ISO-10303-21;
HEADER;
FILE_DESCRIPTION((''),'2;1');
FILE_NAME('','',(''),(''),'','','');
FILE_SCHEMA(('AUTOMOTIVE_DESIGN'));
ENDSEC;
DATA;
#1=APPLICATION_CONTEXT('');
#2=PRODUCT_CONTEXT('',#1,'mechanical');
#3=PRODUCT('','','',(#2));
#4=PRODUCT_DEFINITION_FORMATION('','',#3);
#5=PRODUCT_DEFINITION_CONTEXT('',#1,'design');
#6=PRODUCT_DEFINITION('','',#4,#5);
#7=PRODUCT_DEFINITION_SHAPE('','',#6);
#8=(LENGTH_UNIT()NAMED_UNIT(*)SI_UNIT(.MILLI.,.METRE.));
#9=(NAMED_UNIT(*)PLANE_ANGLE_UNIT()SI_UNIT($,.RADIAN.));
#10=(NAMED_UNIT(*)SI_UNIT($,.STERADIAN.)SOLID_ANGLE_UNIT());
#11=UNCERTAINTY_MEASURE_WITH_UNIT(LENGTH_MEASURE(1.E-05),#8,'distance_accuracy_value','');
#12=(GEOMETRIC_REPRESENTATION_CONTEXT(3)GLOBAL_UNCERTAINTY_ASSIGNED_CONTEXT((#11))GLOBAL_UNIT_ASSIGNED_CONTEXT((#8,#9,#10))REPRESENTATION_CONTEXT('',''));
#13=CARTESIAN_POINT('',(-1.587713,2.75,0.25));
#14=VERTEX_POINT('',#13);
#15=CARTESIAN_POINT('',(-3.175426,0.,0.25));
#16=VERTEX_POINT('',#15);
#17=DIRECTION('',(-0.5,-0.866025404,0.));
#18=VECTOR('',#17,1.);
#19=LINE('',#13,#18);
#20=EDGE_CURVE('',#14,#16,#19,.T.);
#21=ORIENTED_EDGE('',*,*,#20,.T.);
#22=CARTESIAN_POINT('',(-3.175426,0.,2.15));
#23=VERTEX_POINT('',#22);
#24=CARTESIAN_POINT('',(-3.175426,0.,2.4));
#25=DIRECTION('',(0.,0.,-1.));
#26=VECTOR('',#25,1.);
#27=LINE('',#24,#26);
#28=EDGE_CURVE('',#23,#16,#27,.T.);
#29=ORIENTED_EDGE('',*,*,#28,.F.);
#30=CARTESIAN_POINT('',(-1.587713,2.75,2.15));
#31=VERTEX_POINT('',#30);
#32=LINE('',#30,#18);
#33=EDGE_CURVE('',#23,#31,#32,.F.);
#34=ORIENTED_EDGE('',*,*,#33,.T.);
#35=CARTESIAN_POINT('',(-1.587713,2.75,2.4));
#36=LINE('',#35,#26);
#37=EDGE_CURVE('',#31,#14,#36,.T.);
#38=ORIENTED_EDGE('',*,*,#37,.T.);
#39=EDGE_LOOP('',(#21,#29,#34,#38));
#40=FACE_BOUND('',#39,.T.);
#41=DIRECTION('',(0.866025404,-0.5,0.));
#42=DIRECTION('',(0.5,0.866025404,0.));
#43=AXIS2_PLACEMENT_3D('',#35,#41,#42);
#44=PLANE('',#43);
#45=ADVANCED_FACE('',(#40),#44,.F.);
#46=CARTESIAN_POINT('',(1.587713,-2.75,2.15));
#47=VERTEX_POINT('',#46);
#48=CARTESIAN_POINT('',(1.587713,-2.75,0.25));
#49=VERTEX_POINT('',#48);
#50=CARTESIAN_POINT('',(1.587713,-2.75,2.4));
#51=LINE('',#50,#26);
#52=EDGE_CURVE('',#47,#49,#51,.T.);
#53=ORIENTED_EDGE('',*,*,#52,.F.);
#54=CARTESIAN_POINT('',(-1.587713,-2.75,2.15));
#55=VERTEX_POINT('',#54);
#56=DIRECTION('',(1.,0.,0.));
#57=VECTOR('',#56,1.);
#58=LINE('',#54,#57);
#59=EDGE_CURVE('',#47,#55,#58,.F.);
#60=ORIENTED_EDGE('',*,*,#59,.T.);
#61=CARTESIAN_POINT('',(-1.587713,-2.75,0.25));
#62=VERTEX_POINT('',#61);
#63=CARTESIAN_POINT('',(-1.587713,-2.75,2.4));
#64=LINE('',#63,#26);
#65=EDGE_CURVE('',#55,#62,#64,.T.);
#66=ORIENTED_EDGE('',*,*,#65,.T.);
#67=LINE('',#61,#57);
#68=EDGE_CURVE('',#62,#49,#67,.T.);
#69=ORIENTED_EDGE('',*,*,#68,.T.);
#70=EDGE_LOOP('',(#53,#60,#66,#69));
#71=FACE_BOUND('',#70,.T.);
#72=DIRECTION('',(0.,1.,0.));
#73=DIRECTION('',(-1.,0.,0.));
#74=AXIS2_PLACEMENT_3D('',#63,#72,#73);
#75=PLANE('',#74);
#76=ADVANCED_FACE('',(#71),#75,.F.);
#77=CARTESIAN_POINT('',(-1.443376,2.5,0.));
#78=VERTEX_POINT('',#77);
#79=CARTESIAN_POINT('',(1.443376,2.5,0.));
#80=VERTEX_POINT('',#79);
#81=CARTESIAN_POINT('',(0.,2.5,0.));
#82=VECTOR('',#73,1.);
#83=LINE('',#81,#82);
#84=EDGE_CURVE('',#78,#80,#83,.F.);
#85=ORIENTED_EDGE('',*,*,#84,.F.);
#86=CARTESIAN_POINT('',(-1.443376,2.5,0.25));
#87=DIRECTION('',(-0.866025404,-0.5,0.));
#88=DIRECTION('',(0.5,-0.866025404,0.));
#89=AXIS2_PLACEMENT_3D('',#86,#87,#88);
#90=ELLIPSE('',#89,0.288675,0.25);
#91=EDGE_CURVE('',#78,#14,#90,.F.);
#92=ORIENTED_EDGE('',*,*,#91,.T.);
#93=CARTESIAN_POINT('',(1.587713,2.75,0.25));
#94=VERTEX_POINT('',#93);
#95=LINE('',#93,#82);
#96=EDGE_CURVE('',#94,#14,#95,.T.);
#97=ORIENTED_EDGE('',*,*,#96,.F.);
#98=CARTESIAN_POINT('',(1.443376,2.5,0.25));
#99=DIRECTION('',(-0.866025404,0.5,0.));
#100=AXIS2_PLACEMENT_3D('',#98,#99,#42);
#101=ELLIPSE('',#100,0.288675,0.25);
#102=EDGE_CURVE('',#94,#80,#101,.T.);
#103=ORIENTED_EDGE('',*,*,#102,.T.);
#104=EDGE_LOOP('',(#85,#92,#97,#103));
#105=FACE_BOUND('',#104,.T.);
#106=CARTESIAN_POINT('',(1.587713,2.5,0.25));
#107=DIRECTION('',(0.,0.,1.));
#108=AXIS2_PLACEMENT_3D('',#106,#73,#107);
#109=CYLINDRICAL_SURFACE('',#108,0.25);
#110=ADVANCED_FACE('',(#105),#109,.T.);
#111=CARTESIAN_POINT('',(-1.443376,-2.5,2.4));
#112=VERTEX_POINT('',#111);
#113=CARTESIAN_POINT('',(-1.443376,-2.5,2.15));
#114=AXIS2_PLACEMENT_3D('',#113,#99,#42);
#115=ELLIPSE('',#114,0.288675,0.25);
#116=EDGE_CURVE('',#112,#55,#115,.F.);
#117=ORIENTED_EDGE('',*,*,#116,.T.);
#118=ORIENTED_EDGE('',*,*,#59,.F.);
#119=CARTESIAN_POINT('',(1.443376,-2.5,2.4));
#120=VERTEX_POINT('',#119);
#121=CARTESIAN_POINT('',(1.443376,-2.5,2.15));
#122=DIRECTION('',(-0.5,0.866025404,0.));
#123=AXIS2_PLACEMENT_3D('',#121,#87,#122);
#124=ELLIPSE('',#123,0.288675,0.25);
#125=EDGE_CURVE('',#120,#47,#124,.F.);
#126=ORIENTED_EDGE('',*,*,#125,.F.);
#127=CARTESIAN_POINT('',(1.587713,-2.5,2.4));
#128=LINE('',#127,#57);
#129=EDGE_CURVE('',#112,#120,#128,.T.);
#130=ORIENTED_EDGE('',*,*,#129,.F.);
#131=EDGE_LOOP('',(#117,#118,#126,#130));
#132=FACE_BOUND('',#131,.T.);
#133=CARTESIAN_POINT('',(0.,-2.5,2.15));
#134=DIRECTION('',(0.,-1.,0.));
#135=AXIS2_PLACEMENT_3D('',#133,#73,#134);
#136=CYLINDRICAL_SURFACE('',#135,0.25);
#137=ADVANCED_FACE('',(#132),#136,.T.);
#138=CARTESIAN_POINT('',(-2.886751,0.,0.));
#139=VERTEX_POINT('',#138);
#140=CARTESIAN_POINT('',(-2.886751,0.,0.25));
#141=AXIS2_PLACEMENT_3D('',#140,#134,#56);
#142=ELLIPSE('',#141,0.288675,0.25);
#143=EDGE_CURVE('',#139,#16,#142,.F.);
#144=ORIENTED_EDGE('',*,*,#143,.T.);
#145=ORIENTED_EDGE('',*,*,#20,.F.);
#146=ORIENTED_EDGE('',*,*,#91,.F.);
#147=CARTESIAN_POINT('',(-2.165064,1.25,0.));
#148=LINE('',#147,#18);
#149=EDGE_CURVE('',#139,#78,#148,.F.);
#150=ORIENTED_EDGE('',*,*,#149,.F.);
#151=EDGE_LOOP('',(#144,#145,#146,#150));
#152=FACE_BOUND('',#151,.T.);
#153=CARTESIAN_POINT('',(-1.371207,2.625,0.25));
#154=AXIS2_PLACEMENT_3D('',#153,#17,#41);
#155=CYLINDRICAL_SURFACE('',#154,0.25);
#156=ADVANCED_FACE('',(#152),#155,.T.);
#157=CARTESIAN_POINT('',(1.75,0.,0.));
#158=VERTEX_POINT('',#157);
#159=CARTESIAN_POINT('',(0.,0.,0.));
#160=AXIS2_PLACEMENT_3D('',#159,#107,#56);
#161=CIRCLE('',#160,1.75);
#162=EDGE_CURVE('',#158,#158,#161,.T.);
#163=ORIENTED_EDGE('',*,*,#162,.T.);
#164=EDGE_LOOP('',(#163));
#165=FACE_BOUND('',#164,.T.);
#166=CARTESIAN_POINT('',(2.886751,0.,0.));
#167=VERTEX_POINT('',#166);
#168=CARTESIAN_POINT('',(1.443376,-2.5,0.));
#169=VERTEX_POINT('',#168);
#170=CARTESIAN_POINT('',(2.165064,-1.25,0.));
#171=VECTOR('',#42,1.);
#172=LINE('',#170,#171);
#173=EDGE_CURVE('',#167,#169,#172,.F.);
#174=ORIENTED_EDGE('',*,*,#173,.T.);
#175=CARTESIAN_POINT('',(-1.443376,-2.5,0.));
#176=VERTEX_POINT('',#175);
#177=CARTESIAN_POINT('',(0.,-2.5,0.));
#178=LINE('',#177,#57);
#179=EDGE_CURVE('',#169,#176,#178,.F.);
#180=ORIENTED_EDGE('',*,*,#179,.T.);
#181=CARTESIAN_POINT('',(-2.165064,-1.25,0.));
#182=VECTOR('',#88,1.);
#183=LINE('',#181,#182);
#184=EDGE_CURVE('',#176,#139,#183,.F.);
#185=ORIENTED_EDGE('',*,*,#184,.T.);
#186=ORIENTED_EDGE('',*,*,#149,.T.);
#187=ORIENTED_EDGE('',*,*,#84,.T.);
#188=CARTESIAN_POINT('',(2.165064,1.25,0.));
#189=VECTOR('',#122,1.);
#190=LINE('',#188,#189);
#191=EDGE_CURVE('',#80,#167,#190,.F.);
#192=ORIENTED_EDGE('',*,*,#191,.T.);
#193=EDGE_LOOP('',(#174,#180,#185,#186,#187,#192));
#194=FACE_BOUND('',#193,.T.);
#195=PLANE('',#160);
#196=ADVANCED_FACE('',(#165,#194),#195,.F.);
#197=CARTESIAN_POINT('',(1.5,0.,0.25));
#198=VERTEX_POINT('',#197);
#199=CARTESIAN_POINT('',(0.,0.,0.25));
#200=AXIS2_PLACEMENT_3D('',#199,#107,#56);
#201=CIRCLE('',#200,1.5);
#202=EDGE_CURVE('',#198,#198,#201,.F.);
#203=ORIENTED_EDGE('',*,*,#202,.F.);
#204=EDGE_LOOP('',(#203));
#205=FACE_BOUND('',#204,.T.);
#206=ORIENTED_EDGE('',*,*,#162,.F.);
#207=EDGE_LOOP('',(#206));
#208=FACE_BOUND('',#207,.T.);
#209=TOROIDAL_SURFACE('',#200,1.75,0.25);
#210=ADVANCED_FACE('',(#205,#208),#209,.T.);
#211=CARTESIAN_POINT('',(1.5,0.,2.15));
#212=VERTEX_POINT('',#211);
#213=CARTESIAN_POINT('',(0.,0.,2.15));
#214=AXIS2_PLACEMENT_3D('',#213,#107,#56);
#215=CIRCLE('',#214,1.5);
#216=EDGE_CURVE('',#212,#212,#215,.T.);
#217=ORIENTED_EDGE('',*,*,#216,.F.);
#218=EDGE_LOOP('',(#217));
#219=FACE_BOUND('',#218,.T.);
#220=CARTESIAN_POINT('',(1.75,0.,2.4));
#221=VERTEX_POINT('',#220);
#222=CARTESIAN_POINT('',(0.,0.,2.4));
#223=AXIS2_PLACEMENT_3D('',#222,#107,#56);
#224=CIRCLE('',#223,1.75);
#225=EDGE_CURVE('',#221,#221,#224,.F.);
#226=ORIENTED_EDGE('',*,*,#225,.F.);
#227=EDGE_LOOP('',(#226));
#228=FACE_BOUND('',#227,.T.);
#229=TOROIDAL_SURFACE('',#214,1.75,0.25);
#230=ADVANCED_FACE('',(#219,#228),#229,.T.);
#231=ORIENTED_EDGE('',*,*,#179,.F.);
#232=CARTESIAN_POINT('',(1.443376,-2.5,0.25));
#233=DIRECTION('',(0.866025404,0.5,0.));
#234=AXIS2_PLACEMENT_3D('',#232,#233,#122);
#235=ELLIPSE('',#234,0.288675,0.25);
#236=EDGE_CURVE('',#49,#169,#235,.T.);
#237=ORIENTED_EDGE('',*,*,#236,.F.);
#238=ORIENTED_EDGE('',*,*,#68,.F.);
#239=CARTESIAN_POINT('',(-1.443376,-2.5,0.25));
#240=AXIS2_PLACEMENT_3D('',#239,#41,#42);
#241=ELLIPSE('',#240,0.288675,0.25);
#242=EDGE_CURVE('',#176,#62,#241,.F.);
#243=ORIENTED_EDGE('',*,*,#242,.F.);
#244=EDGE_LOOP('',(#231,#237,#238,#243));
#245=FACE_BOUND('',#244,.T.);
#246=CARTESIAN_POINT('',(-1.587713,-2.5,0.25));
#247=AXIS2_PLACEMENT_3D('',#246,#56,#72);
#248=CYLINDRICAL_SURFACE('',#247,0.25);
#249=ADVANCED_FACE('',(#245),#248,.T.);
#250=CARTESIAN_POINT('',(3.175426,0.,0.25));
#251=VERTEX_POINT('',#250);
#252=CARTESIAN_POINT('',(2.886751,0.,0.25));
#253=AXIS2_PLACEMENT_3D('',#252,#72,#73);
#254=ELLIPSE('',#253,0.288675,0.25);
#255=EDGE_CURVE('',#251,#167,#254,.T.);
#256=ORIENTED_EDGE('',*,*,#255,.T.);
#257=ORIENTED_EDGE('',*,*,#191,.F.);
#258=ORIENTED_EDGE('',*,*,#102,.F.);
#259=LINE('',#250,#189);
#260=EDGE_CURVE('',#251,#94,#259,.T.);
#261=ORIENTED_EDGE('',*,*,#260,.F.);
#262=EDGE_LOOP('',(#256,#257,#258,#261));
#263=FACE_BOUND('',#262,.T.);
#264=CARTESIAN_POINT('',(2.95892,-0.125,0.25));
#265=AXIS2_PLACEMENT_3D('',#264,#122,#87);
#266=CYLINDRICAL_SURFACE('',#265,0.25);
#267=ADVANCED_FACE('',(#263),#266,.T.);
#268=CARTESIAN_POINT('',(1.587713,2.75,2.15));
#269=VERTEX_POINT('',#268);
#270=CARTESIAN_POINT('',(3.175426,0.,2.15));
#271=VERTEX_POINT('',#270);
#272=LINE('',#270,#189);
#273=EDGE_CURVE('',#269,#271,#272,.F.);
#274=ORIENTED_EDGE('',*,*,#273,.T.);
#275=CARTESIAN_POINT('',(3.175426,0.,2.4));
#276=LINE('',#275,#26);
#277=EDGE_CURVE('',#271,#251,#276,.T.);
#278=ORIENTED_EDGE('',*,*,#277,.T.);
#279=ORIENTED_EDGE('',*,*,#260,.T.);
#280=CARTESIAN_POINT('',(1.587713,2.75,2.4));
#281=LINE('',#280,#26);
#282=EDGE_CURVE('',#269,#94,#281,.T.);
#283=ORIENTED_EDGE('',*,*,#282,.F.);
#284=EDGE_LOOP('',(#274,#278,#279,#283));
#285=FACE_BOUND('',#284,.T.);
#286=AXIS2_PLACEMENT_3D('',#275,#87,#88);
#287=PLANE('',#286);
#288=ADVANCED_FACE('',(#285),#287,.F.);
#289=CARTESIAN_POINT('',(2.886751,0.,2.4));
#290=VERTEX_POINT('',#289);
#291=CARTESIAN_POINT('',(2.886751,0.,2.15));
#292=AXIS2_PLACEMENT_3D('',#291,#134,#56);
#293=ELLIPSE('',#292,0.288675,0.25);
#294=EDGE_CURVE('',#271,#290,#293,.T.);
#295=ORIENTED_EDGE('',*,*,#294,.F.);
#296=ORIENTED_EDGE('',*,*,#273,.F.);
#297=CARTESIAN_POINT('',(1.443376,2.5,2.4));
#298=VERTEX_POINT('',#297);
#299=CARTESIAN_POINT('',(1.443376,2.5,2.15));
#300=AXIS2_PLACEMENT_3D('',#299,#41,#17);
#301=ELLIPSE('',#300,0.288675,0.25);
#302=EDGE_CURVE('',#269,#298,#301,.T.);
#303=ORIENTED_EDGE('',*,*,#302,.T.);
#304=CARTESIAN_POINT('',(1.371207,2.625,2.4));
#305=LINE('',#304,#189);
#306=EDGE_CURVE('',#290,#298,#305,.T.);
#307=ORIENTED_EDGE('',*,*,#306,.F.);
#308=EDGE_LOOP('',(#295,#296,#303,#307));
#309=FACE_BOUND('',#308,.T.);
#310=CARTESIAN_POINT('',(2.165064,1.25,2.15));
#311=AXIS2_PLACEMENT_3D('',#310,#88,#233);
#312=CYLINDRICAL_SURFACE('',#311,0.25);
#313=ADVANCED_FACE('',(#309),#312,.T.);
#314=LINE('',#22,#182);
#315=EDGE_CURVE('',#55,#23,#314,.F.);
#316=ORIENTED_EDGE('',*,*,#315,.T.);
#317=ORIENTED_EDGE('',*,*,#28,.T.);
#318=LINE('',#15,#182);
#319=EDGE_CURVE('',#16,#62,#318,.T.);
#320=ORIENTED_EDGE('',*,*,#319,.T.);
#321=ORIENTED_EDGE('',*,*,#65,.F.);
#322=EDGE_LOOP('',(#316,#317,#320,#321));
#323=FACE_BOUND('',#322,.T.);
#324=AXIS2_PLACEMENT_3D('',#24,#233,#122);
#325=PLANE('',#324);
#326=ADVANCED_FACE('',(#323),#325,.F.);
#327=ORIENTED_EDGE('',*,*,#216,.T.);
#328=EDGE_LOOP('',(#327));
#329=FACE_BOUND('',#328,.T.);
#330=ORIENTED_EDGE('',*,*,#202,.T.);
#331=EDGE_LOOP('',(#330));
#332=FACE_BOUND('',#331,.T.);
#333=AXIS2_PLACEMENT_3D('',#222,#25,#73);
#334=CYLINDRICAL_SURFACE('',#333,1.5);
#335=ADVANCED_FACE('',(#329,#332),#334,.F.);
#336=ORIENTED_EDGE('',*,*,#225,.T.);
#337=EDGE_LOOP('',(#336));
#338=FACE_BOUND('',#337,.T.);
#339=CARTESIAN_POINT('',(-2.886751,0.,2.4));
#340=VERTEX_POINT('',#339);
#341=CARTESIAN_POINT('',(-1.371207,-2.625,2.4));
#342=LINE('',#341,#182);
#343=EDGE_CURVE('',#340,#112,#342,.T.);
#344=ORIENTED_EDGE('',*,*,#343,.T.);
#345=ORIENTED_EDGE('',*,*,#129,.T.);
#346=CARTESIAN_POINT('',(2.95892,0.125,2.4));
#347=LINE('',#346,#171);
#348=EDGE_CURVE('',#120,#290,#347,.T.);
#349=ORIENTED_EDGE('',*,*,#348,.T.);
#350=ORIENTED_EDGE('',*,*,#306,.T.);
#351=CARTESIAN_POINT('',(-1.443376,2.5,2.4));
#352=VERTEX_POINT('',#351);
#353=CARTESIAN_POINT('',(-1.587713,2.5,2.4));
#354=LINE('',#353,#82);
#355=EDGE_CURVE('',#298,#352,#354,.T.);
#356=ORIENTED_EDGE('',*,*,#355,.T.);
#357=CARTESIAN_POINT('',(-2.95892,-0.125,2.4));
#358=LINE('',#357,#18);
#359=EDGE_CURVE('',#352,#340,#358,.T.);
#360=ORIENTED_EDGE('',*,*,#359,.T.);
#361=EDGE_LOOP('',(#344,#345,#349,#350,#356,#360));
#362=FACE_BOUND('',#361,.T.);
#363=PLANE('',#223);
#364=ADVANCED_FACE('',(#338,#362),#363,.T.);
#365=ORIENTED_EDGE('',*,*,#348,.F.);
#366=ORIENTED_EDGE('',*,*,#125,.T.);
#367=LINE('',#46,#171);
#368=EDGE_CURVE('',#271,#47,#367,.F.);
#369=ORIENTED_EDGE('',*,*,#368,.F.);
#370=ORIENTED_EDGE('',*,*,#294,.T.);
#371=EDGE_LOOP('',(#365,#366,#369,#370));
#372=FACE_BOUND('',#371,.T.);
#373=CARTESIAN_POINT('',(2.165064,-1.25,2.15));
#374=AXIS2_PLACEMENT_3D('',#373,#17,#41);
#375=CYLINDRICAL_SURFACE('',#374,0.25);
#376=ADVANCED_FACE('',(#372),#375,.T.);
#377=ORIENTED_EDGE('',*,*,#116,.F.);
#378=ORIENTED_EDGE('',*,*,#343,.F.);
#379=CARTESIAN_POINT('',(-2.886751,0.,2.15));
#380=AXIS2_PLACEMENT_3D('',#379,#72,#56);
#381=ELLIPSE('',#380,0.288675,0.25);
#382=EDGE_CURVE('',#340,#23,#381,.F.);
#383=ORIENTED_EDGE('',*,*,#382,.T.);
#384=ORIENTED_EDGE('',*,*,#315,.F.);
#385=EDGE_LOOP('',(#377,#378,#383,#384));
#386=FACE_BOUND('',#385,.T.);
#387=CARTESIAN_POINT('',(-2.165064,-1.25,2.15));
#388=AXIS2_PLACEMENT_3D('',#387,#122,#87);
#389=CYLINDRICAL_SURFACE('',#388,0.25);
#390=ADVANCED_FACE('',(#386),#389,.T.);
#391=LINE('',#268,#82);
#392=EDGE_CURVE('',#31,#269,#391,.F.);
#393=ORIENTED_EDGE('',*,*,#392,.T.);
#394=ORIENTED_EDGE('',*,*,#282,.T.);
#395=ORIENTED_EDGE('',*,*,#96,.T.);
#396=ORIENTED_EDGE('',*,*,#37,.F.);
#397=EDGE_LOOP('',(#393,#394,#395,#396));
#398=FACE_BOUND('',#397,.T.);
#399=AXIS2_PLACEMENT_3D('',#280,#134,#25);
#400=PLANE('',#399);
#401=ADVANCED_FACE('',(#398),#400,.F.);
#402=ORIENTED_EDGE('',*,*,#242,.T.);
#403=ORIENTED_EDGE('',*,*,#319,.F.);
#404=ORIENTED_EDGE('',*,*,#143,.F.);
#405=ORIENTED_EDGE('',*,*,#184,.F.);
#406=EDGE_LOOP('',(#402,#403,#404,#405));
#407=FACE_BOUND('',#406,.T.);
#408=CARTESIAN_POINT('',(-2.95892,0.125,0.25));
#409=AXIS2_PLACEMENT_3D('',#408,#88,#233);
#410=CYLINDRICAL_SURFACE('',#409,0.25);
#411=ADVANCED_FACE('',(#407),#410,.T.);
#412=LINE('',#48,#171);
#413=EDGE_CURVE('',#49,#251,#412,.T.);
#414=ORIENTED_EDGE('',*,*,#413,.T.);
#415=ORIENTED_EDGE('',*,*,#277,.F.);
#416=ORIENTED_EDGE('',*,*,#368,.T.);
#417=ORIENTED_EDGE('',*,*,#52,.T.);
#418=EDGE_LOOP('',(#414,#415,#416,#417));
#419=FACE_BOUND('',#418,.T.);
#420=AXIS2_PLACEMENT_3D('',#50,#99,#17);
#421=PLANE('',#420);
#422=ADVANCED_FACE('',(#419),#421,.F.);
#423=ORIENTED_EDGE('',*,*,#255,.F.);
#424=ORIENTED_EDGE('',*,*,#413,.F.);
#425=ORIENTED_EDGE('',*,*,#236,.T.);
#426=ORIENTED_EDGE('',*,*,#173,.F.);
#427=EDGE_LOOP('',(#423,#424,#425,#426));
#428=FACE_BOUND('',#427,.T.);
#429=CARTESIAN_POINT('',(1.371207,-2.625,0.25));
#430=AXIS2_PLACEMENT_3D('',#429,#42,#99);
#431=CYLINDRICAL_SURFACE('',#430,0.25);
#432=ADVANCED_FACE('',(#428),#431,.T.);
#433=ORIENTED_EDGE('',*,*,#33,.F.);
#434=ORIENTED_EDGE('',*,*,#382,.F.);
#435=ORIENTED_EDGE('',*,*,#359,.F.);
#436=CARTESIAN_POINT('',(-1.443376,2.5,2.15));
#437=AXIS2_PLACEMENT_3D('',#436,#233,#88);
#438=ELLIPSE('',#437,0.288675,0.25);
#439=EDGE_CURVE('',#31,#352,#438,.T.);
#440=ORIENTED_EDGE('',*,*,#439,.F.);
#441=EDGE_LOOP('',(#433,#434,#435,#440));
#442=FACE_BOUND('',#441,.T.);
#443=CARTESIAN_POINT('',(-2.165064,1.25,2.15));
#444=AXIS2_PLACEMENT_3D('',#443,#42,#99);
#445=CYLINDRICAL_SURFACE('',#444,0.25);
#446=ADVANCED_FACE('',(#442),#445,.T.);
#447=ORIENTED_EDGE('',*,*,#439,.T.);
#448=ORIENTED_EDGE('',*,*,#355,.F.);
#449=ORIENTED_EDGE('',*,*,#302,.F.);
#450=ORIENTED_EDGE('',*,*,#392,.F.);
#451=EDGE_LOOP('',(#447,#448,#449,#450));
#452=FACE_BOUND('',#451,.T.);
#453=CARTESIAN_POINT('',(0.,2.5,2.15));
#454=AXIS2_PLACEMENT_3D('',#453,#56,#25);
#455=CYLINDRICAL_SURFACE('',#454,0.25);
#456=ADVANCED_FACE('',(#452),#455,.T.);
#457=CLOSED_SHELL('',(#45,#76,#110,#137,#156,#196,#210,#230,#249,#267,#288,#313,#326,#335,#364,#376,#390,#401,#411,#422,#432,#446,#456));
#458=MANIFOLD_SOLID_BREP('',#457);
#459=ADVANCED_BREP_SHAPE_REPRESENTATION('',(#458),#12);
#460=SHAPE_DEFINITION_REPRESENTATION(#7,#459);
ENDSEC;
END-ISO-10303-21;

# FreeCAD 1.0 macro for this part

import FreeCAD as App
import Part
import Sketcher

V = App.Vector
Q = App.Units.Quantity


def edges_at(feature, points):
    """Names of the edges that pass closest to the given points."""
    edges = feature.Shape.Edges
    near = lambda p: min(range(len(edges)), key=lambda i: edges[i].distToShape(Part.Vertex(*p))[0])
    return sorted({f"Edge{near(p) + 1}" for p in points})

doc = App.newDocument("Part")
body = doc.addObject("PartDesign::Body", "Body")

# Sketch on XY plane
sketch1 = body.newObject("Sketcher::SketchObject", "Sketch")
sketch1.AttachmentSupport = (doc.getObject("XY_Plane"), [""])
sketch1.MapMode = "FlatFace"
sketch1.addGeometry(Part.LineSegment(V(1.6, 2.8, 0), V(-1.6, 2.8, 0)), False)
sketch1.addGeometry(Part.LineSegment(V(-1.6, 2.8, 0), V(-3.2, 0, 0)), False)
sketch1.addGeometry(Part.LineSegment(V(-3.2, 0, 0), V(-1.6, -2.8, 0)), False)
sketch1.addGeometry(Part.LineSegment(V(-1.6, -2.8, 0), V(1.6, -2.8, 0)), False)
sketch1.addGeometry(Part.LineSegment(V(1.6, -2.8, 0), V(3.2, 0, 0)), False)
sketch1.addGeometry(Part.LineSegment(V(3.2, 0, 0), V(1.6, 2.8, 0)), False)
sketch1.addGeometry(Part.Circle(V(0, 0, 0), V(0, 0, 1), 1.5), False)
sketch1.addConstraint(Sketcher.Constraint("Coincident", 0, 2, 1, 1))
sketch1.addConstraint(Sketcher.Constraint("Coincident", 1, 2, 2, 1))
sketch1.addConstraint(Sketcher.Constraint("Coincident", 2, 2, 3, 1))
sketch1.addConstraint(Sketcher.Constraint("Coincident", 3, 2, 4, 1))
sketch1.addConstraint(Sketcher.Constraint("Coincident", 4, 2, 5, 1))
sketch1.addConstraint(Sketcher.Constraint("Coincident", 5, 2, 0, 1))
sketch1.addConstraint(Sketcher.Constraint("Horizontal", 0))
sketch1.addConstraint(Sketcher.Constraint("Horizontal", 3))
sketch1.addConstraint(Sketcher.Constraint("Coincident", 6, 3, -1, 1))
sketch1.addConstraint(Sketcher.Constraint("Symmetric", 0, 2, 3, 2, -1, 1))
sketch1.addConstraint(Sketcher.Constraint("Symmetric", 1, 2, 4, 2, -1, 1))
sketch1.addConstraint(Sketcher.Constraint("PointOnObject", 1, 2, -1))
sketch1.addConstraint(Sketcher.Constraint("Parallel", 2, 5))
sketch1.addConstraint(Sketcher.Constraint("Vertical", 0, 2, 2, 2))
sketch1.addConstraint(Sketcher.Constraint("Diameter", 6, Q("3 mm")))
sketch1.addConstraint(Sketcher.Constraint("Angle", 1, Q("-120 deg")))
sketch1.addConstraint(Sketcher.Constraint("DistanceY", 2, 2, 0, 2, Q("5.5 mm")))
sketch1.addConstraint(Sketcher.Constraint("DistanceX", 0, 2, 0, 1, Q("3.175426 mm")))
pad1 = body.newObject("PartDesign::Pad", "Pad")
pad1.Profile = sketch1
pad1.Length = 2.4
doc.recompute()

fillet = body.newObject("PartDesign::Fillet", "Fillet")
fillet.Base = (pad1, edges_at(pad1, [
    (-2.382, 1.375, 2.4),
    (-2.382, -1.375, 2.4),
    (-1.5, 0, 0),
    (-1.5, 0, 2.4),
    (0, -2.75, 2.4),
    (2.382, -1.375, 2.4),
    (2.382, 1.375, 2.4),
    (2.382, -1.375, 0),
    (0, -2.75, 0),
    (-2.382, -1.375, 0),
    (-2.382, 1.375, 0),
    (0, 2.75, 0),
    (2.382, 1.375, 0),
    (0, 2.75, 2.4),
]))
fillet.Radius = 0.25

doc.recompute()
